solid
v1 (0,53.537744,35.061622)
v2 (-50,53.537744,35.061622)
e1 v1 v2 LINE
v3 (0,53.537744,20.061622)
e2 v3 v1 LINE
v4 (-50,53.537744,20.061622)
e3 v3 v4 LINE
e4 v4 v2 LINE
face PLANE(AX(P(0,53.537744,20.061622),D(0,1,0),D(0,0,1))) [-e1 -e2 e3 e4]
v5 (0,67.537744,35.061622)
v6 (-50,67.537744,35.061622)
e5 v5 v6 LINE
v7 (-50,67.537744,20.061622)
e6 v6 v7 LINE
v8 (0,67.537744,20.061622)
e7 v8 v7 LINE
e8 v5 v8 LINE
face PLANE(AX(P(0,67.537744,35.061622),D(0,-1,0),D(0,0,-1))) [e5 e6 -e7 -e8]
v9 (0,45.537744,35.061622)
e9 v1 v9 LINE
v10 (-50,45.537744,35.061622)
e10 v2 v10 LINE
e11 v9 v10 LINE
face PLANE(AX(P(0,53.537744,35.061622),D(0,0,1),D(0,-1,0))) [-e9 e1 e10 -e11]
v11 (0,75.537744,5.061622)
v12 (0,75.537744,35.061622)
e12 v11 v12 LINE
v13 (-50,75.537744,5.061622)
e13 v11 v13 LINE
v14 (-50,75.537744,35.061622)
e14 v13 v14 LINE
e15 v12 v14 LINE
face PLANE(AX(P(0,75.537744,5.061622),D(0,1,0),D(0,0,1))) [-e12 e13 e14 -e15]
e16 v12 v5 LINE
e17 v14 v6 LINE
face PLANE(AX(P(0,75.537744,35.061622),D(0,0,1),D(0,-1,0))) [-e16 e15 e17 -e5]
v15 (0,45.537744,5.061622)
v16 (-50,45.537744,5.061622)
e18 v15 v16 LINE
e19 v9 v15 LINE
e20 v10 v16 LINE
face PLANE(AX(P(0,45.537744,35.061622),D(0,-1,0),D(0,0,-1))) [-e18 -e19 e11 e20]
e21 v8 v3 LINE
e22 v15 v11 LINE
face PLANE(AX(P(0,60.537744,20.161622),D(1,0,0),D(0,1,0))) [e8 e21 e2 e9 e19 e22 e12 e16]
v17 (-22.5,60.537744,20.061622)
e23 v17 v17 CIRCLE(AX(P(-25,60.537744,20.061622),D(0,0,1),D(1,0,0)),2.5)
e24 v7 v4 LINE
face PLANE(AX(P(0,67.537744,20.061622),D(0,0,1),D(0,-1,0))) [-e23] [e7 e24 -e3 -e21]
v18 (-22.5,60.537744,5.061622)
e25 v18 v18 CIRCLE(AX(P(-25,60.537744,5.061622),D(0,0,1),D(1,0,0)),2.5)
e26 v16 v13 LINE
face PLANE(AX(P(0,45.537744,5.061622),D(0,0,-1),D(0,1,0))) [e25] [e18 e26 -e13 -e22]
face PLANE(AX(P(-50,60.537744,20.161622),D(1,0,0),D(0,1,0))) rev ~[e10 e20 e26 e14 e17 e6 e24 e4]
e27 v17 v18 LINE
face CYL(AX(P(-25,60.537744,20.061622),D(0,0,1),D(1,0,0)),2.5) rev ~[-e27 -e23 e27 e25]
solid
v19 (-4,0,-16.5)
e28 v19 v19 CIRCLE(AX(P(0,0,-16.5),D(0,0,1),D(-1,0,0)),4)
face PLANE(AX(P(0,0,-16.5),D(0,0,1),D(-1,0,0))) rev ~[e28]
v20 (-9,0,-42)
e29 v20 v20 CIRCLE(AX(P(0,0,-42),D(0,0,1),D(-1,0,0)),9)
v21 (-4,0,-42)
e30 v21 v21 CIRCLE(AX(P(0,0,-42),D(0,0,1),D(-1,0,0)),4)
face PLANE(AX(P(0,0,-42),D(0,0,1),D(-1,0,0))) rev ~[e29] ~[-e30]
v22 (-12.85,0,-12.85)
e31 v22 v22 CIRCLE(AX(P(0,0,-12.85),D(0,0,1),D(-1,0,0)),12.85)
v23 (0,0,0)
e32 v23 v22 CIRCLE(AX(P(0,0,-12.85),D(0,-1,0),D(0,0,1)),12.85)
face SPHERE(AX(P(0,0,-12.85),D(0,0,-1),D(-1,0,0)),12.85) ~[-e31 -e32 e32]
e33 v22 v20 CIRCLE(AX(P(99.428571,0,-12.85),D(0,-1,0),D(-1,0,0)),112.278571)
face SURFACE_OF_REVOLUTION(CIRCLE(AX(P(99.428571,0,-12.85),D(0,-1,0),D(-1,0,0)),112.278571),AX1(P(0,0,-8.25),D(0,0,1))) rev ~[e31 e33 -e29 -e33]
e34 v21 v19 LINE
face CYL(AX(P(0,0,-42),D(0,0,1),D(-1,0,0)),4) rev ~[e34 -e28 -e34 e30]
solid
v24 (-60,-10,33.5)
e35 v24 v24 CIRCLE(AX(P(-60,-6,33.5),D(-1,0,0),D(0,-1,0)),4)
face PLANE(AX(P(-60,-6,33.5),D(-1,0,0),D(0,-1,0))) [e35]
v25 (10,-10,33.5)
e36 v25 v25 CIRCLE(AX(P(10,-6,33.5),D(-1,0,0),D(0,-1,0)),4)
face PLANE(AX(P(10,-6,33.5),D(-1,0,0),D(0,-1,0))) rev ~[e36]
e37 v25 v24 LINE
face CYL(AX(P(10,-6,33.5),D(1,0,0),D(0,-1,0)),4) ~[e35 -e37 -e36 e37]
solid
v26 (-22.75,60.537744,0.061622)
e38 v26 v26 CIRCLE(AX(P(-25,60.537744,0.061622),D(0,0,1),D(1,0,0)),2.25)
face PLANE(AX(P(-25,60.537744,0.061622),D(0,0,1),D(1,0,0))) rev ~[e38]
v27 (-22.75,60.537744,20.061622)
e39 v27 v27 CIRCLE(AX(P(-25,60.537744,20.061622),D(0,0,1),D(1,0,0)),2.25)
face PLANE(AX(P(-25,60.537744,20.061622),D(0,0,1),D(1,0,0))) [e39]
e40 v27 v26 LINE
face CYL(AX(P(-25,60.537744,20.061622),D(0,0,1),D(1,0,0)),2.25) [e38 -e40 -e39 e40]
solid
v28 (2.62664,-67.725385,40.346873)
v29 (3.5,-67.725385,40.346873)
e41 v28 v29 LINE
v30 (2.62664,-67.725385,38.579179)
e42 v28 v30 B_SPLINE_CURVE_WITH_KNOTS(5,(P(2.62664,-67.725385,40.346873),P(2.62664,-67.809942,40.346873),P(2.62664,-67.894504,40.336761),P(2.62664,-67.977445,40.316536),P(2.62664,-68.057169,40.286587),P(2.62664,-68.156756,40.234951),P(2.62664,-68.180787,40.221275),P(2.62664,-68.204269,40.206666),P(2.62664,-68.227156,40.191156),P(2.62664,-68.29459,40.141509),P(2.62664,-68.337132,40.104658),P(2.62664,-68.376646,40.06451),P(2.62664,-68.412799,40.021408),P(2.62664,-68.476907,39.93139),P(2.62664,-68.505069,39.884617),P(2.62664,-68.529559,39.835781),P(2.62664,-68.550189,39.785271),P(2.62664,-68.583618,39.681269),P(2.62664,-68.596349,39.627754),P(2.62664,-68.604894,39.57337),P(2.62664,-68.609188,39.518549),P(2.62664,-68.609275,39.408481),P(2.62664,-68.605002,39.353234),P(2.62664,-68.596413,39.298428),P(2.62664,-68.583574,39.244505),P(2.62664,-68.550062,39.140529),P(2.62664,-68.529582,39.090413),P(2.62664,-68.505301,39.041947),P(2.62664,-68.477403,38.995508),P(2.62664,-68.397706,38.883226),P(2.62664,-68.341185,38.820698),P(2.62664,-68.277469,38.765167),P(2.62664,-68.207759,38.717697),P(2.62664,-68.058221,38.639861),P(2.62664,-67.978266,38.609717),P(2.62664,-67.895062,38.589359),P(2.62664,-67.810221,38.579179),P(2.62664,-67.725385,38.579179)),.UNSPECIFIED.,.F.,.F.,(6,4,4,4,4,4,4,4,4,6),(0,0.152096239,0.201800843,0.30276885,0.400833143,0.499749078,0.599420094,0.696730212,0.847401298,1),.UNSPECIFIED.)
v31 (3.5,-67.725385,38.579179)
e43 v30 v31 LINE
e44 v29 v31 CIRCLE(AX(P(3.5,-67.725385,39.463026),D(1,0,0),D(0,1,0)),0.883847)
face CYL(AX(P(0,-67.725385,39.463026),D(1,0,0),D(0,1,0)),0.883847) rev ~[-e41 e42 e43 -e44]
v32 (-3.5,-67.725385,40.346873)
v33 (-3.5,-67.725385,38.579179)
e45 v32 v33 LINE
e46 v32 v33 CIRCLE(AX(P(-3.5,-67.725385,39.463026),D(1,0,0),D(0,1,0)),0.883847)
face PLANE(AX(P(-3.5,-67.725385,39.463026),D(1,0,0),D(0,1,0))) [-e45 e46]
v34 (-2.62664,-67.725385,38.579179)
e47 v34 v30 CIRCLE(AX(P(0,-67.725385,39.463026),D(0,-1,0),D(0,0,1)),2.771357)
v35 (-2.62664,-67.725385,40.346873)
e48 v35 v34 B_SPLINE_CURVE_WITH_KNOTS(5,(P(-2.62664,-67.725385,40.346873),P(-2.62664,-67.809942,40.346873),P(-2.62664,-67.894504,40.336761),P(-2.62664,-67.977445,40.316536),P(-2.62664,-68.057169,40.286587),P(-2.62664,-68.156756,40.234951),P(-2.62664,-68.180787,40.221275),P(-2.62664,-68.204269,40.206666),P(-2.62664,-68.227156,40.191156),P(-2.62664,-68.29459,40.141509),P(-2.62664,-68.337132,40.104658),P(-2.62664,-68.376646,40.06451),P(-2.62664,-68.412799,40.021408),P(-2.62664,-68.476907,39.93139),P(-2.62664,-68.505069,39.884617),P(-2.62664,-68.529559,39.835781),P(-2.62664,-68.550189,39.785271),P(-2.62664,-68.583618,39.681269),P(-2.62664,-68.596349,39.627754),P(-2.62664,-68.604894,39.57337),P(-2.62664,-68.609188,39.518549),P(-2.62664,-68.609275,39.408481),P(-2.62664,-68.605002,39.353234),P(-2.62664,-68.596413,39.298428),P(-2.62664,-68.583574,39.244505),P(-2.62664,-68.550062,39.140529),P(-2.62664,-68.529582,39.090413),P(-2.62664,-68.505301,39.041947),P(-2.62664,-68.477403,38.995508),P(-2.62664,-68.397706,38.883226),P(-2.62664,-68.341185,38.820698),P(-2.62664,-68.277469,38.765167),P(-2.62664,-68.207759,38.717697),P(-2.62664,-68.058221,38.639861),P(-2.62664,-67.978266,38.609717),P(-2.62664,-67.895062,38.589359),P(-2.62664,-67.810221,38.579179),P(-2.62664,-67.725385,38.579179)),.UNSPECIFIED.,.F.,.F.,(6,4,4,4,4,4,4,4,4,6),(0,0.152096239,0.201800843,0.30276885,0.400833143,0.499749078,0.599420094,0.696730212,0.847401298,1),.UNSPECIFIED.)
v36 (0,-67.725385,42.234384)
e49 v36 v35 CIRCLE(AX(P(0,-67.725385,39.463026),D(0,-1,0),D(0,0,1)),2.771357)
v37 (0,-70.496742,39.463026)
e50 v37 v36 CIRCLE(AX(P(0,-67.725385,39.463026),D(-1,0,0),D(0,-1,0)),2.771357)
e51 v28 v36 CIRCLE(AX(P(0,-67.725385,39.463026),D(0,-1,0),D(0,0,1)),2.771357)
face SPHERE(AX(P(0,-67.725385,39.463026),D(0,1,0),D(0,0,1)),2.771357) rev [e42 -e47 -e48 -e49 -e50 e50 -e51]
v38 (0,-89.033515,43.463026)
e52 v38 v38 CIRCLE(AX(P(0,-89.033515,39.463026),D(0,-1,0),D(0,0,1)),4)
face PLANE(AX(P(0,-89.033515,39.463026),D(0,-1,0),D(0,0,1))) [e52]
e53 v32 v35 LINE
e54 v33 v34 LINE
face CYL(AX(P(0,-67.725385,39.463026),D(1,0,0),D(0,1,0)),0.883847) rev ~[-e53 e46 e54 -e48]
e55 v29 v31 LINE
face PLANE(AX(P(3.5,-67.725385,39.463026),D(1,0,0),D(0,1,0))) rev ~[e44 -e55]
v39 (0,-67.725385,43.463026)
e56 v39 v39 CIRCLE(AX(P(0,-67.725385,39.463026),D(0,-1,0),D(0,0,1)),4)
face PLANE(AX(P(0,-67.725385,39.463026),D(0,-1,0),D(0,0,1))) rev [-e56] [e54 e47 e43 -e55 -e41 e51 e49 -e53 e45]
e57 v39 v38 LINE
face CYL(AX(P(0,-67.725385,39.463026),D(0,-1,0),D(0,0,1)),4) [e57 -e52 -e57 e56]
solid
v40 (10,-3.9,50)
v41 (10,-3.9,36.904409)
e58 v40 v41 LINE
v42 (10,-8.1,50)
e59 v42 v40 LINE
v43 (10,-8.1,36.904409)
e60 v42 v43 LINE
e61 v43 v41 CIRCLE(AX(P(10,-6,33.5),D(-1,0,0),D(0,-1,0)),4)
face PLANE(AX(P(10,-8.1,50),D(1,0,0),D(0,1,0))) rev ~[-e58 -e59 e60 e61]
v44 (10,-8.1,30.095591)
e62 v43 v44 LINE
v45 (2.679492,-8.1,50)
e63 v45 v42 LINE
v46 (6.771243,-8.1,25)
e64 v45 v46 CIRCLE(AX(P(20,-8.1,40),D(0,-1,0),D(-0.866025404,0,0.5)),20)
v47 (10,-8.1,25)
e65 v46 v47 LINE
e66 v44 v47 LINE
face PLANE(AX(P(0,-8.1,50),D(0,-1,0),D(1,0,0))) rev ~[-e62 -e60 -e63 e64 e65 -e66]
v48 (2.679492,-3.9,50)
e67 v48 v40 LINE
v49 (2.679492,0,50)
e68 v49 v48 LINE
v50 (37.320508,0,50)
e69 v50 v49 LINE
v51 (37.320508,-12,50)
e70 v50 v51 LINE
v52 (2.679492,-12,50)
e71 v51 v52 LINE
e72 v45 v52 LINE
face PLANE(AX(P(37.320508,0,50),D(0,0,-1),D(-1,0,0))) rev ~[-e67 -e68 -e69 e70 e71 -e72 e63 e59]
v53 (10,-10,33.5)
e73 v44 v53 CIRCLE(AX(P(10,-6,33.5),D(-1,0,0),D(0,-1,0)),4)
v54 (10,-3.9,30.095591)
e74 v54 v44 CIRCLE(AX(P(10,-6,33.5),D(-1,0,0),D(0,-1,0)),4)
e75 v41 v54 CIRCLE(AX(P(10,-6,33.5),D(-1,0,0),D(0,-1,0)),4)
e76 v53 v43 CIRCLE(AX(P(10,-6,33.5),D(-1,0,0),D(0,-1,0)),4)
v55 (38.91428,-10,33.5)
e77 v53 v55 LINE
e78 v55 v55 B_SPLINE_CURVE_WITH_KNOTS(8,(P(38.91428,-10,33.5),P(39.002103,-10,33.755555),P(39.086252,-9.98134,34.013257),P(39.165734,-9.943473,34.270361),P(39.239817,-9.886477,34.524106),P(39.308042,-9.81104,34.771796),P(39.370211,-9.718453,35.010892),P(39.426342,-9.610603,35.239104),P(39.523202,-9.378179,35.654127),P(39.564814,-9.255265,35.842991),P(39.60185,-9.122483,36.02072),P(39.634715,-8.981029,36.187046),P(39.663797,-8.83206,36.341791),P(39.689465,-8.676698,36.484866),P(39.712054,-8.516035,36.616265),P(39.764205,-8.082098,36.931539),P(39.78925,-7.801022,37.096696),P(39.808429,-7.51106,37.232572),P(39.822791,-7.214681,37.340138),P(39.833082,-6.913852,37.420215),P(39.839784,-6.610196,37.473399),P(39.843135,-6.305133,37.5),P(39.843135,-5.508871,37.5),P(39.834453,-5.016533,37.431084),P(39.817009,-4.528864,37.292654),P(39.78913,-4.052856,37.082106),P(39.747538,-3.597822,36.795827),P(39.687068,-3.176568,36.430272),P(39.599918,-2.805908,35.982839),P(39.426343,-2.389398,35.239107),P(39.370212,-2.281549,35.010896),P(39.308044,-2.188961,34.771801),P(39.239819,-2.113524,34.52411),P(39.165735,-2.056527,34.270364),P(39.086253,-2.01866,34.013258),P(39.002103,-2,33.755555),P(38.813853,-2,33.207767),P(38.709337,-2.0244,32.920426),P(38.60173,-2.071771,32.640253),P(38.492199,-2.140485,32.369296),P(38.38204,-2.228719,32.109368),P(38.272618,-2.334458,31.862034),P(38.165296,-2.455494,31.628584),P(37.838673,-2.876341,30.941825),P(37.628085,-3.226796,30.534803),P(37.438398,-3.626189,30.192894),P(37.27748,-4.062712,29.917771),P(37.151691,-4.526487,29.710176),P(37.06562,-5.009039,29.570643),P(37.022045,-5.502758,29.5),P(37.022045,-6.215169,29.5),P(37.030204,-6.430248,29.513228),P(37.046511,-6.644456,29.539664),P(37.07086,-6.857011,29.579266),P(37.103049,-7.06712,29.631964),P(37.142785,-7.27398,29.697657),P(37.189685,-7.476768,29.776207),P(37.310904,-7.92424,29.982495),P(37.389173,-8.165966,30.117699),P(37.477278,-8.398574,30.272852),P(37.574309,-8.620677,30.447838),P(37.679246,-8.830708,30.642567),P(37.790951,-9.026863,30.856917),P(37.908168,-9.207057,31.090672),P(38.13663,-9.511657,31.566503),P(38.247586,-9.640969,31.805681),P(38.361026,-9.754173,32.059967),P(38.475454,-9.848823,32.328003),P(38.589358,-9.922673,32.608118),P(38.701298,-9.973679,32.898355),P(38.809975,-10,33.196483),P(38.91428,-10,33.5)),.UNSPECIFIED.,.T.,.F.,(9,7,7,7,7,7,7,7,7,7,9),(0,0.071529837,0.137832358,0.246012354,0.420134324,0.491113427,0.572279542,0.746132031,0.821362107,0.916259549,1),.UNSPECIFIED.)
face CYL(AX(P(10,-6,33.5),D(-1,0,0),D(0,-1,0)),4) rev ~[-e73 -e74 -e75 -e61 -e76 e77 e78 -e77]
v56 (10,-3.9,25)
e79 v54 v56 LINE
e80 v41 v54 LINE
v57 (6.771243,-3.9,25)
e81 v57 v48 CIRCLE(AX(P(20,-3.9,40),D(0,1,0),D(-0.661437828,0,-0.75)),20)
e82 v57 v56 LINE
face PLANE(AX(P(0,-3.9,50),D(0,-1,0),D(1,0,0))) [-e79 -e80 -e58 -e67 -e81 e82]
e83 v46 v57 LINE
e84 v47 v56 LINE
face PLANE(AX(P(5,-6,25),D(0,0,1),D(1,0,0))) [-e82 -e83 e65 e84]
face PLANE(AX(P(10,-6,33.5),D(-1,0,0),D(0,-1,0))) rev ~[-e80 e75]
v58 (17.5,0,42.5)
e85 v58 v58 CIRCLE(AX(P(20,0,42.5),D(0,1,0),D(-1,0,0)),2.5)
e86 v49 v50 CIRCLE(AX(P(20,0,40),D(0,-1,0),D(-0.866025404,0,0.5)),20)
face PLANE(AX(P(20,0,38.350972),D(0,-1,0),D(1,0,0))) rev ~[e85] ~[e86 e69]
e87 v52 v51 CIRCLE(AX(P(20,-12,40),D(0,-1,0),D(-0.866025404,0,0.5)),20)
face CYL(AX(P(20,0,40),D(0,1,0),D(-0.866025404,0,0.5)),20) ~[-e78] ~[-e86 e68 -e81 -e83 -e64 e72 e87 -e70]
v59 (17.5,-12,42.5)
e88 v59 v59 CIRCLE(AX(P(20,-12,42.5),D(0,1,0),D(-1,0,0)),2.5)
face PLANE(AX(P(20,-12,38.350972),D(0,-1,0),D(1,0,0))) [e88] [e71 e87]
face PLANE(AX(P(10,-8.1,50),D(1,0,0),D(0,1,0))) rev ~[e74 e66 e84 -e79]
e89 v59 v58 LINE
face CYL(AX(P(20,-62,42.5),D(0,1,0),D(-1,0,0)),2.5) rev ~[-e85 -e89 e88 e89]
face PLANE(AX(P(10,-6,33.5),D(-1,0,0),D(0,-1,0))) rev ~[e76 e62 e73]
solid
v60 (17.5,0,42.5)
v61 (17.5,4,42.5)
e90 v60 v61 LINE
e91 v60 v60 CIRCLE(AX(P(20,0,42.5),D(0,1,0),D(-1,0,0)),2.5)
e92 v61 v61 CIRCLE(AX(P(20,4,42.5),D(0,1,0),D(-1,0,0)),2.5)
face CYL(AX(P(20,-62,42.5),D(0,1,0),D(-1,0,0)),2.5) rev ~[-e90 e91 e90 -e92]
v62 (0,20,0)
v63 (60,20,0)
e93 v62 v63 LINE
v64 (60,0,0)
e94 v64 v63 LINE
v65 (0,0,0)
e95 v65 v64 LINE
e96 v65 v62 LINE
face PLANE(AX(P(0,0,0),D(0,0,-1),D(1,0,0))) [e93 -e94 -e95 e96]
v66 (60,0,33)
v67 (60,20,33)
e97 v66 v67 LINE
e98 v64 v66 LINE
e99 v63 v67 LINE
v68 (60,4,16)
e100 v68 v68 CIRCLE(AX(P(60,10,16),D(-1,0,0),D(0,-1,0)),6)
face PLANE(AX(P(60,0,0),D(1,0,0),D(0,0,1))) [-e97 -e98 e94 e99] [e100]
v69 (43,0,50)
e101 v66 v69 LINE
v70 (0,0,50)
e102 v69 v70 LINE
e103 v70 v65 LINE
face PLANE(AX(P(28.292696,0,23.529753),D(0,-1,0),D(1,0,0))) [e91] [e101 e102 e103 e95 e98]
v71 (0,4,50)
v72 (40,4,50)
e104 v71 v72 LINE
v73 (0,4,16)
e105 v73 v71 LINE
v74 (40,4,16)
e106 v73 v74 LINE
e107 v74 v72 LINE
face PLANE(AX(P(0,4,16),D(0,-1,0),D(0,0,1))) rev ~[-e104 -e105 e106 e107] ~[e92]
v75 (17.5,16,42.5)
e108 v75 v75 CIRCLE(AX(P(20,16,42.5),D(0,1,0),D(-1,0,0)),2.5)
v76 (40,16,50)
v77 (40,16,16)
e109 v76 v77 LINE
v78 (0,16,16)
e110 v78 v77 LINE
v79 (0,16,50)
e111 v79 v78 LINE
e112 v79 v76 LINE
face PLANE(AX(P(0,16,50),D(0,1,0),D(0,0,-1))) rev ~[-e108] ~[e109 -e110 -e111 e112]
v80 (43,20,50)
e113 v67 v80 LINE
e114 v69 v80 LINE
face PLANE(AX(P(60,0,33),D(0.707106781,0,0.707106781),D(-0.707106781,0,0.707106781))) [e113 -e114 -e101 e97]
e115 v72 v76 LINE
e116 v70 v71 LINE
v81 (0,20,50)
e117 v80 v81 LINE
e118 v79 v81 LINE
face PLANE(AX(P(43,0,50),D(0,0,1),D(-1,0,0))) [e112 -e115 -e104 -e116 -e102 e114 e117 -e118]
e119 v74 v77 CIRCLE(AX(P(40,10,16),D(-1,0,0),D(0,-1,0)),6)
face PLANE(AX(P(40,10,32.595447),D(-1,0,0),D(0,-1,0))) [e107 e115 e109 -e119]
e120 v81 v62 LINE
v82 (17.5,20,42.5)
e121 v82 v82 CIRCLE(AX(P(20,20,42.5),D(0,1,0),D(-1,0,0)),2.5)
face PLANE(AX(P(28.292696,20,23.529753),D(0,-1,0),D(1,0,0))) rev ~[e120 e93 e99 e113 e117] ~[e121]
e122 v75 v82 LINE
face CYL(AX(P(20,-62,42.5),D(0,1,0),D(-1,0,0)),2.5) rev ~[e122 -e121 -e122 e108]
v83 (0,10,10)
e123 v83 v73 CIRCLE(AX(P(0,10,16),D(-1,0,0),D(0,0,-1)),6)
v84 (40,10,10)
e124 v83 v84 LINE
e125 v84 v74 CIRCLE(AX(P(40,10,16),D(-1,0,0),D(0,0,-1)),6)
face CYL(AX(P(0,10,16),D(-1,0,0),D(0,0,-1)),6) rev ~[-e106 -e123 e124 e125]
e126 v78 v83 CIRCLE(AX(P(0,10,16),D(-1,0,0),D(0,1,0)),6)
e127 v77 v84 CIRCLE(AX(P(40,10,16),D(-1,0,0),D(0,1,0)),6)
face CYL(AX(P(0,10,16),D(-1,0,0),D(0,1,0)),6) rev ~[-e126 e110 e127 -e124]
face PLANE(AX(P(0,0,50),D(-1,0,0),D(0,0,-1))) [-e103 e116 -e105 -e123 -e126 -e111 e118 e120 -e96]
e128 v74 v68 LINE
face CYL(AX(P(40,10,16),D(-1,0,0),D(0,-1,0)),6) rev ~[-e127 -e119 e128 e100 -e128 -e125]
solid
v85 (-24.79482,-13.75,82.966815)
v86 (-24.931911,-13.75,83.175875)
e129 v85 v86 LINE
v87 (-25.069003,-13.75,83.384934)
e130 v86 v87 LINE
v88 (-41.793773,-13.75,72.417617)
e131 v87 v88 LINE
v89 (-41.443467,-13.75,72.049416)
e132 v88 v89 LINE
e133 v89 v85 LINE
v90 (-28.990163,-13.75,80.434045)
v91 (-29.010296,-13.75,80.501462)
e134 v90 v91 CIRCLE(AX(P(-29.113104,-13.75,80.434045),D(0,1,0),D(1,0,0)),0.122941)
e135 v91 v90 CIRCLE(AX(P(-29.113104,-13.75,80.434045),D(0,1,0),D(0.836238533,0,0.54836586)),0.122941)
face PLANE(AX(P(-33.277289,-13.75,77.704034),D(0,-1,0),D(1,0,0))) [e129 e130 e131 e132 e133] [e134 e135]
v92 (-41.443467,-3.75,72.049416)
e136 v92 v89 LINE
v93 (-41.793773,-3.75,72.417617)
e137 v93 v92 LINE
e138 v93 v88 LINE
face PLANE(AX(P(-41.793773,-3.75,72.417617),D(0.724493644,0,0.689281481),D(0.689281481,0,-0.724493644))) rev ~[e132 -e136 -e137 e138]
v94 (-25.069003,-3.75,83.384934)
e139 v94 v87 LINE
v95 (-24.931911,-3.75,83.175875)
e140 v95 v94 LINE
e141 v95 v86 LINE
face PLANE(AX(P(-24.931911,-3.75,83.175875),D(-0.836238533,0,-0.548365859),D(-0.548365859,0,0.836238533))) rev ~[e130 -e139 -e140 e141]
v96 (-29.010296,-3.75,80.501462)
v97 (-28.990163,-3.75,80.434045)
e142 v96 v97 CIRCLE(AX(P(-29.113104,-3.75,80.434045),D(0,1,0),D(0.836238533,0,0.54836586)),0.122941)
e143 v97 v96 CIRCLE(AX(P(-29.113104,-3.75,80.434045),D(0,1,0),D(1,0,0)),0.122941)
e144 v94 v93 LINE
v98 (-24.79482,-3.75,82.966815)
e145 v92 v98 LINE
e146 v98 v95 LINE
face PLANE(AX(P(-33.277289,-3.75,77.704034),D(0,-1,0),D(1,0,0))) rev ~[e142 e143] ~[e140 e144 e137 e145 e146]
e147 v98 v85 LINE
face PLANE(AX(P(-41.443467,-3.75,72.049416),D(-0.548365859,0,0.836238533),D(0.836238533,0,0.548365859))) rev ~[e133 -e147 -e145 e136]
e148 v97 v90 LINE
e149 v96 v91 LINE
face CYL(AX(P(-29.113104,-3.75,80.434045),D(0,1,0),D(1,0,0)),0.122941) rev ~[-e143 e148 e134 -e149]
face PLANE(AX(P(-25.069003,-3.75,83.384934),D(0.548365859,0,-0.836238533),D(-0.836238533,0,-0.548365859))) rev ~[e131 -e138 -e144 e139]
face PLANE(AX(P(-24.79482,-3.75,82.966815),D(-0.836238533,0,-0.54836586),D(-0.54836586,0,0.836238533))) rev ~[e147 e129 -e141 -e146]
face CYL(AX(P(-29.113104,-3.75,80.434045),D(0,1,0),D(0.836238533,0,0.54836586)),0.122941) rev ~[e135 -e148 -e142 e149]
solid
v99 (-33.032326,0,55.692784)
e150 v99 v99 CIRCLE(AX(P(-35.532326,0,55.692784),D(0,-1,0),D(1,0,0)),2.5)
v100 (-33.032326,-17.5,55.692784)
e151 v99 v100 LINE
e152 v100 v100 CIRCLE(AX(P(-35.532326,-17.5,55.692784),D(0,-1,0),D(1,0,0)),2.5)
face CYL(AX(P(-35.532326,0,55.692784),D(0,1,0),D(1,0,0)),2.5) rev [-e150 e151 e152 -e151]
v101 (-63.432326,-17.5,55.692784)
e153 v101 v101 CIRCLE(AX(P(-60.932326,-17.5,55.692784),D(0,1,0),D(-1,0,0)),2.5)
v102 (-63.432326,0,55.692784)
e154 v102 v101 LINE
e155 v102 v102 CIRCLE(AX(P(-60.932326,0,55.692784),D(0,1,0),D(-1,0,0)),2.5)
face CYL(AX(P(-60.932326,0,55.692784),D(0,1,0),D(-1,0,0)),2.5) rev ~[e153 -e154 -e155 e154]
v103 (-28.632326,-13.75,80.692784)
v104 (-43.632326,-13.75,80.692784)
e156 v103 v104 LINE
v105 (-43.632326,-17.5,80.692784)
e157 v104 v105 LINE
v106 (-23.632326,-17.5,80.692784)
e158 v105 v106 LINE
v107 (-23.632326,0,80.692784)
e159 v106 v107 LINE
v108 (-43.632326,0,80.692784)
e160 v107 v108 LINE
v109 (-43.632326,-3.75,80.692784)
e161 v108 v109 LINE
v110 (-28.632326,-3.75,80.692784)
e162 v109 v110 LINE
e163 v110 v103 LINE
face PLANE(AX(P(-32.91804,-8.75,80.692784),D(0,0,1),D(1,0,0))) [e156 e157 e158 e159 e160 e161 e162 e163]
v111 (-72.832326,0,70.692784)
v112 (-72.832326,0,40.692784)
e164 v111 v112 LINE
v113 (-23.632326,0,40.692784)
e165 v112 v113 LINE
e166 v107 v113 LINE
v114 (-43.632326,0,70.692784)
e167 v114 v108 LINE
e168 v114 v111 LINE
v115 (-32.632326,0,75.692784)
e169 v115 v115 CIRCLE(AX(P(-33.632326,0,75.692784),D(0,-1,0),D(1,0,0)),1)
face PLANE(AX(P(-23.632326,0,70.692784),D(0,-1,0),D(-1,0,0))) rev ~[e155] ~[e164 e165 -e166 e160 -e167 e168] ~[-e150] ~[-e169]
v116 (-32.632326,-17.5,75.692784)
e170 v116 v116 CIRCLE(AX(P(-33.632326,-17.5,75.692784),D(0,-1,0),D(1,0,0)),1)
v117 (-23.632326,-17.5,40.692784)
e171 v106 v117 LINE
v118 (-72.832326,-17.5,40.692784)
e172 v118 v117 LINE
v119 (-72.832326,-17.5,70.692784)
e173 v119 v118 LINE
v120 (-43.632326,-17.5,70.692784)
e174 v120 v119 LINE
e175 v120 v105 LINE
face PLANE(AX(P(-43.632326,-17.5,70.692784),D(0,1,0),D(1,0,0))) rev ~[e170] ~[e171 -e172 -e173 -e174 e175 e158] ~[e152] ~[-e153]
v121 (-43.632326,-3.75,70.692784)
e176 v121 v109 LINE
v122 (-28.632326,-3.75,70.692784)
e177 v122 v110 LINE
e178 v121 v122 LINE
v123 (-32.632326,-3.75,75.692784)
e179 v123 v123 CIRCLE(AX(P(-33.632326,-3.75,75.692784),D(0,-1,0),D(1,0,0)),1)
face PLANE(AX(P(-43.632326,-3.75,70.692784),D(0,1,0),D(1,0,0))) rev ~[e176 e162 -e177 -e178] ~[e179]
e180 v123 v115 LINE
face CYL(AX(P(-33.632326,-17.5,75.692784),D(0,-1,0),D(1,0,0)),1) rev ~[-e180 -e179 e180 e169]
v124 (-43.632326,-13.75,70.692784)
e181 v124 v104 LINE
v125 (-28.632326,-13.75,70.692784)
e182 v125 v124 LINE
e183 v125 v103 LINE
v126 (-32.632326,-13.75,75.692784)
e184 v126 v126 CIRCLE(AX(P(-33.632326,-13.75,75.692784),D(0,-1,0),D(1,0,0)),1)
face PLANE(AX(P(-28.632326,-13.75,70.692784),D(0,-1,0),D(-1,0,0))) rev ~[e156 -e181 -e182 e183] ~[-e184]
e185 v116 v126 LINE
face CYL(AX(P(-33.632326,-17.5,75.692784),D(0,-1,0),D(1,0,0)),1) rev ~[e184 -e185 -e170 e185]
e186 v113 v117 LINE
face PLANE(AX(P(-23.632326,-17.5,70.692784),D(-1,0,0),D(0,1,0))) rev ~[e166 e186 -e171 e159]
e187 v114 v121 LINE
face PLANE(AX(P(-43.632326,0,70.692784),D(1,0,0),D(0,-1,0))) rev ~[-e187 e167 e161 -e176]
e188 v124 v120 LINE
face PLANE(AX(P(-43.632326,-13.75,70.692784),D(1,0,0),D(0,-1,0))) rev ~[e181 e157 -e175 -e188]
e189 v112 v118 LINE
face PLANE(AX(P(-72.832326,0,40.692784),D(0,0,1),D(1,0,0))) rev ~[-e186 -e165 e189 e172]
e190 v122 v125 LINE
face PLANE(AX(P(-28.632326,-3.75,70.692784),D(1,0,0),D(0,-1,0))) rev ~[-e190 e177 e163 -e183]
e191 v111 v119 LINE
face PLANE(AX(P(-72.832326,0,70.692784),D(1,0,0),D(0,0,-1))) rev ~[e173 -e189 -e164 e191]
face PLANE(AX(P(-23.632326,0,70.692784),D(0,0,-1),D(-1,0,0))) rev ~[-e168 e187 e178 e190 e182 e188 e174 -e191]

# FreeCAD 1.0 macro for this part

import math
import FreeCAD as App
import Part
import Sketcher

V = App.Vector


def add_polygon(sketch, points):
    """Adds a closed chain of lines whose ends are joined by coincident constraints."""
    first, n = sketch.GeometryCount, len(points)
    for a, b in zip(points, points[1:] + points[:1]):
        sketch.addGeometry(Part.LineSegment(App.Vector(*a, 0), App.Vector(*b, 0)), False)
    for i in range(n):
        sketch.addConstraint(Sketcher.Constraint("Coincident", first + i, 2, first + (i + 1) % n, 1))

doc = App.newDocument("Part")
body = doc.addObject("PartDesign::Body", "Body")

# Sketch on XZ plane
sketch1 = body.newObject("Sketcher::SketchObject", "Sketch")
sketch1.AttachmentSupport = (doc.getObject("XZ_Plane"), [""])
sketch1.MapMode = "FlatFace"
add_polygon(sketch1, [(0, 50), (0, 0), (60, 0), (60, 33), (43, 50)])  # lines 0-4
sketch1.addConstraint(Sketcher.Constraint("Vertical", 0))
sketch1.addConstraint(Sketcher.Constraint("Horizontal", 1))
sketch1.addConstraint(Sketcher.Constraint("Vertical", 2))
sketch1.addConstraint(Sketcher.Constraint("Horizontal", 4))
sketch1.addConstraint(Sketcher.Constraint("Coincident", 0, 2, -1, 1))
sketch1.addConstraint(Sketcher.Constraint("DistanceX", 1, 1, 1, 2, 60.0))
sketch1.addConstraint(Sketcher.Constraint("DistanceX", 4, 2, 4, 1, 43.0))
sketch1.addConstraint(Sketcher.Constraint("DistanceY", 0, 2, 0, 1, 50.0))
sketch1.addConstraint(Sketcher.Constraint("DistanceY", 2, 1, 2, 2, 33.0))
pad1 = body.newObject("PartDesign::Pad", "Pad")
pad1.Profile = sketch1
pad1.Length = 20
pad1.Reversed = True

# Sketch on YZ plane
sketch2 = body.newObject("Sketcher::SketchObject", "Sketch001")
sketch2.AttachmentSupport = (doc.getObject("YZ_Plane"), [""])
sketch2.MapMode = "FlatFace"
sketch2.addGeometry(Part.LineSegment(V(4, 50, 0), V(16, 50, 0)), False)
sketch2.addGeometry(Part.LineSegment(V(16, 50, 0), V(16, 16, 0)), False)
sketch2.addGeometry(Part.ArcOfCircle(Part.Circle(V(10, 16, 0), V(0, 0, 1), 6), math.radians(-90), math.radians(0)), False)
sketch2.addGeometry(Part.ArcOfCircle(Part.Circle(V(10, 16, 0), V(0, 0, 1), 6), math.radians(180), math.radians(270)), False)
sketch2.addGeometry(Part.LineSegment(V(4, 16, 0), V(4, 50, 0)), False)
sketch2.addConstraint(Sketcher.Constraint("Coincident", 0, 2, 1, 1))
sketch2.addConstraint(Sketcher.Constraint("Tangent", 1, 2, 2, 2))
sketch2.addConstraint(Sketcher.Constraint("Tangent", 2, 1, 3, 2))
sketch2.addConstraint(Sketcher.Constraint("Tangent", 3, 1, 4, 1))
sketch2.addConstraint(Sketcher.Constraint("Coincident", 4, 2, 0, 1))
sketch2.addConstraint(Sketcher.Constraint("Horizontal", 0))
sketch2.addConstraint(Sketcher.Constraint("Vertical", 1))
sketch2.addConstraint(Sketcher.Constraint("Vertical", 4))
sketch2.addConstraint(Sketcher.Constraint("Equal", 2, 3))
sketch2.addConstraint(Sketcher.Constraint("Vertical", 3, 3, 2, 1))
sketch2.addConstraint(Sketcher.Constraint("Radius", 2, 6.0))
sketch2.addConstraint(Sketcher.Constraint("DistanceY", 1, 2, 1, 1, 34.0))
sketch2.addConstraint(Sketcher.Constraint("DistanceX", -1, 1, 2, 3, 10.0))
sketch2.addConstraint(Sketcher.Constraint("DistanceY", -1, 1, 2, 3, 16.0))
pocket1 = body.newObject("PartDesign::Pocket", "Pocket")
pocket1.Profile = sketch2
pocket1.Length = 40
pocket1.Reversed = True

# Sketch on YZ plane
sketch3 = body.newObject("Sketcher::SketchObject", "Sketch002")
sketch3.AttachmentSupport = (doc.getObject("YZ_Plane"), [""])
sketch3.MapMode = "FlatFace"
sketch3.AttachmentOffset = App.Placement(V(0, 0, 40), App.Rotation())
sketch3.addGeometry(Part.Circle(V(10, 16, 0), V(0, 0, 1), 6), False)
sketch3.addConstraint(Sketcher.Constraint("Diameter", 0, 12.0))
sketch3.addConstraint(Sketcher.Constraint("DistanceX", -1, 1, 0, 3, 10.0))
sketch3.addConstraint(Sketcher.Constraint("DistanceY", -1, 1, 0, 3, 16.0))
pocket2 = body.newObject("PartDesign::Pocket", "Pocket001")
pocket2.Profile = sketch3
pocket2.Length = 25
pocket2.Reversed = True

# Sketch on XZ plane
sketch4 = body.newObject("Sketcher::SketchObject", "Sketch003")
sketch4.AttachmentSupport = (doc.getObject("XZ_Plane"), [""])
sketch4.MapMode = "FlatFace"
sketch4.AttachmentOffset = App.Placement(V(0, 0, 12), App.Rotation())
sketch4.addGeometry(Part.Circle(V(20, 42.5, 0), V(0, 0, 1), 2.5), False)
sketch4.addConstraint(Sketcher.Constraint("Diameter", 0, 5.0))
sketch4.addConstraint(Sketcher.Constraint("DistanceX", -1, 1, 0, 3, 20.0))
sketch4.addConstraint(Sketcher.Constraint("DistanceY", -1, 1, 0, 3, 42.5))
doc.recompute()
hole = body.newObject("PartDesign::Hole", "Hole")
hole.Profile = sketch4
hole.ThreadType = "None"
hole.Diameter = 5
hole.DepthType = "Dimension"
hole.Depth = 50
hole.DrillPoint = "Angled"
hole.DrillPointAngle = 118
body2 = doc.addObject("PartDesign::Body", "Body001")

# Sketch on XZ plane
sketch5 = body2.newObject("Sketcher::SketchObject", "Sketch004")
sketch5.AttachmentSupport = (doc.getObject("XZ_Plane001"), [""])
sketch5.MapMode = "FlatFace"
sketch5.addGeometry(Part.LineSegment(V(37, 50, 0), V(3, 50, 0)), False)
sketch5.addGeometry(Part.ArcOfCircle(Part.Circle(V(20, 40, 0), V(0, 0, 1), 20), math.radians(150), math.radians(390)), False)
sketch5.addConstraint(Sketcher.Constraint("Coincident", 0, 1, 1, 2))
sketch5.addConstraint(Sketcher.Constraint("Coincident", 1, 1, 0, 2))
sketch5.addConstraint(Sketcher.Constraint("Horizontal", 0))
sketch5.addConstraint(Sketcher.Constraint("Radius", 1, 20.0))
sketch5.addConstraint(Sketcher.Constraint("DistanceX", -1, 1, 1, 3, 20.0))
sketch5.addConstraint(Sketcher.Constraint("DistanceY", -1, 1, 1, 3, 40.0))
sketch5.addConstraint(Sketcher.Constraint("DistanceY", -1, 1, 0, 1, 50.0))
pad2 = body2.newObject("PartDesign::Pad", "Pad001")
pad2.Profile = sketch5
pad2.Length = 12

# Sketch on XZ plane
sketch6 = body2.newObject("Sketcher::SketchObject", "Sketch005")
sketch6.AttachmentSupport = (doc.getObject("XZ_Plane001"), [""])
sketch6.MapMode = "FlatFace"
sketch6.AttachmentOffset = App.Placement(V(0, 0, 12), App.Rotation())
sketch6.addGeometry(Part.Circle(V(20, 42.5, 0), V(0, 0, 1), 2.5), False)
sketch6.addConstraint(Sketcher.Constraint("Diameter", 0, 5.0))
sketch6.addConstraint(Sketcher.Constraint("DistanceX", -1, 1, 0, 3, 20.0))
sketch6.addConstraint(Sketcher.Constraint("DistanceY", -1, 1, 0, 3, 42.5))
doc.recompute()
hole2 = body2.newObject("PartDesign::Hole", "Hole001")
hole2.Profile = sketch6
hole2.ThreadType = "None"
hole2.Diameter = 5
hole2.DepthType = "Dimension"
hole2.Depth = 50
hole2.DrillPoint = "Angled"
hole2.DrillPointAngle = 118

# Sketch on XY plane
sketch7 = body2.newObject("Sketcher::SketchObject", "Sketch006")
sketch7.AttachmentSupport = (doc.getObject("XY_Plane001"), [""])
sketch7.MapMode = "FlatFace"
sketch7.AttachmentOffset = App.Placement(V(0, 0, 50), App.Rotation())
add_polygon(sketch7, [(0, -3.9), (0, -8.1), (10, -8.1), (10, -3.9)])  # lines 0-3
sketch7.addConstraint(Sketcher.Constraint("Vertical", 0))
sketch7.addConstraint(Sketcher.Constraint("Horizontal", 1))
sketch7.addConstraint(Sketcher.Constraint("Vertical", 2))
sketch7.addConstraint(Sketcher.Constraint("Horizontal", 3))
sketch7.addConstraint(Sketcher.Constraint("PointOnObject", 0, 2, -2))
sketch7.addConstraint(Sketcher.Constraint("DistanceX", 1, 1, 1, 2, 10.0))
sketch7.addConstraint(Sketcher.Constraint("DistanceY", 0, 2, 0, 1, 4.2))
sketch7.addConstraint(Sketcher.Constraint("DistanceY", 0, 2, -1, 1, 8.1))
pocket3 = body2.newObject("PartDesign::Pocket", "Pocket002")
pocket3.Profile = sketch7
pocket3.Length = 25

# Sketch on YZ plane
sketch8 = body2.newObject("Sketcher::SketchObject", "Sketch007")
sketch8.AttachmentSupport = (doc.getObject("YZ_Plane001"), [""])
sketch8.MapMode = "FlatFace"
sketch8.AttachmentOffset = App.Placement(V(0, 0, 10), App.Rotation())
sketch8.addGeometry(Part.Circle(V(-6, 33.5, 0), V(0, 0, 1), 4), False)
sketch8.addConstraint(Sketcher.Constraint("Diameter", 0, 8.0))
sketch8.addConstraint(Sketcher.Constraint("DistanceX", 0, 3, -1, 1, 6.0))
sketch8.addConstraint(Sketcher.Constraint("DistanceY", -1, 1, 0, 3, 33.5))
pocket4 = body2.newObject("PartDesign::Pocket", "Pocket003")
pocket4.Profile = sketch8
pocket4.Length = 30
pocket4.Reversed = True
body3 = doc.addObject("PartDesign::Body", "Body002")

# Sketch on YZ plane
sketch9 = body3.newObject("Sketcher::SketchObject", "Sketch008")
sketch9.AttachmentSupport = (doc.getObject("YZ_Plane002"), [""])
sketch9.MapMode = "FlatFace"
sketch9.AttachmentOffset = App.Placement(V(0, 0, 10), App.Rotation())
sketch9.addGeometry(Part.Circle(V(-6, 33.5, 0), V(0, 0, 1), 4), False)
sketch9.addConstraint(Sketcher.Constraint("Diameter", 0, 8.0))
sketch9.addConstraint(Sketcher.Constraint("DistanceX", 0, 3, -1, 1, 6.0))
sketch9.addConstraint(Sketcher.Constraint("DistanceY", -1, 1, 0, 3, 33.5))
pad3 = body3.newObject("PartDesign::Pad", "Pad002")
pad3.Profile = sketch9
pad3.Length = 70
pad3.Reversed = True
body4 = doc.addObject("PartDesign::Body", "Body003")

# Sketch on XZ plane
sketch10 = body4.newObject("Sketcher::SketchObject", "Sketch009")
sketch10.AttachmentSupport = (doc.getObject("XZ_Plane003"), [""])
sketch10.MapMode = "FlatFace"
sketch10.addGeometry(Part.LineSegment(V(-4, -16.5, 0), V(0, -16.5, 0)), False)
sketch10.addGeometry(Part.LineSegment(V(0, -16.5, 0), V(0, 0, 0)), False)
sketch10.addGeometry(Part.ArcOfCircle(Part.Circle(V(0, -12.8, 0), V(0, 0, 1), 12.8), math.radians(90), math.radians(180)), False)
sketch10.addGeometry(Part.ArcOfCircle(Part.Circle(V(99.4, -12.8, 0), V(0, 0, 1), 112.3), math.radians(-180), math.radians(-164.95)), False)
sketch10.addGeometry(Part.LineSegment(V(-9, -42, 0), V(-4, -42, 0)), False)
sketch10.addGeometry(Part.LineSegment(V(-4, -42, 0), V(-4, -16.5, 0)), False)
sketch10.addConstraint(Sketcher.Constraint("Coincident", 0, 2, 1, 1))
sketch10.addConstraint(Sketcher.Constraint("Coincident", 1, 2, 2, 1))
sketch10.addConstraint(Sketcher.Constraint("Tangent", 2, 2, 3, 1))
sketch10.addConstraint(Sketcher.Constraint("Coincident", 3, 2, 4, 1))
sketch10.addConstraint(Sketcher.Constraint("Coincident", 4, 2, 5, 1))
sketch10.addConstraint(Sketcher.Constraint("Coincident", 5, 2, 0, 1))
sketch10.addConstraint(Sketcher.Constraint("Horizontal", 0))
sketch10.addConstraint(Sketcher.Constraint("Vertical", 1))
sketch10.addConstraint(Sketcher.Constraint("Horizontal", 4))
sketch10.addConstraint(Sketcher.Constraint("Vertical", 5))
sketch10.addConstraint(Sketcher.Constraint("Coincident", 1, 2, -1, 1))
sketch10.addConstraint(Sketcher.Constraint("PointOnObject", 2, 3, -2))
sketch10.addConstraint(Sketcher.Constraint("Horizontal", 2, 3, 3, 3))
sketch10.addConstraint(Sketcher.Constraint("DistanceX", 0, 1, 0, 2, 4.0))
sketch10.addConstraint(Sketcher.Constraint("DistanceX", 4, 1, 4, 2, 5.0))
sketch10.addConstraint(Sketcher.Constraint("Radius", 2, 12.85))
sketch10.addConstraint(Sketcher.Constraint("DistanceY", 1, 1, 1, 2, 16.5))
sketch10.addConstraint(Sketcher.Constraint("DistanceY", 5, 1, 5, 2, 25.5))
revolution = body4.newObject("PartDesign::Revolution", "Revolution")
revolution.Profile = sketch10
revolution.ReferenceAxis = (sketch10, ["V_Axis"])
revolution.Angle = 360
body5 = doc.addObject("PartDesign::Body", "Body004")

# Sketch on XZ plane
sketch11 = body5.newObject("Sketcher::SketchObject", "Sketch010")
sketch11.AttachmentSupport = (doc.getObject("XZ_Plane004"), [""])
sketch11.MapMode = "FlatFace"
add_polygon(sketch11, [(-23.6, 70.7), (-72.8, 70.7), (-72.8, 40.7), (-23.6, 40.7)])  # lines 0-3
sketch11.addGeometry(Part.Circle(V(-60.9, 55.7, 0), V(0, 0, 1), 2.5), False)  # 4
sketch11.addGeometry(Part.Circle(V(-35.5, 55.7, 0), V(0, 0, 1), 2.5), False)  # 5
sketch11.addConstraint(Sketcher.Constraint("Horizontal", 0))
sketch11.addConstraint(Sketcher.Constraint("Vertical", 1))
sketch11.addConstraint(Sketcher.Constraint("Horizontal", 2))
sketch11.addConstraint(Sketcher.Constraint("Vertical", 3))
sketch11.addConstraint(Sketcher.Constraint("Equal", 4, 5))
sketch11.addConstraint(Sketcher.Constraint("Horizontal", 4, 3, 5, 3))
sketch11.addConstraint(Sketcher.Constraint("Diameter", 4, 5.0))
sketch11.addConstraint(Sketcher.Constraint("DistanceY", 1, 2, 1, 1, 30.0))
sketch11.addConstraint(Sketcher.Constraint("DistanceX", 0, 2, 0, 1, 49.2))
sketch11.addConstraint(Sketcher.Constraint("DistanceY", 4, 3, 0, 2, 15.0))
sketch11.addConstraint(Sketcher.Constraint("DistanceX", 4, 3, 5, 3, 25.4))
sketch11.addConstraint(Sketcher.Constraint("DistanceX", 0, 2, 4, 3, 11.9))
sketch11.addConstraint(Sketcher.Constraint("DistanceX", 4, 3, -1, 1, 60.932326))
sketch11.addConstraint(Sketcher.Constraint("DistanceY", -1, 1, 4, 3, 55.692784))
pad4 = body5.newObject("PartDesign::Pad", "Pad003")
pad4.Profile = sketch11
pad4.Length = 17.5

# Sketch on XY plane
sketch12 = body5.newObject("Sketcher::SketchObject", "Sketch011")
sketch12.AttachmentSupport = (doc.getObject("XY_Plane004"), [""])
sketch12.MapMode = "FlatFace"
sketch12.AttachmentOffset = App.Placement(V(0, 0, 70.692784), App.Rotation())
add_polygon(sketch12, [(-23.6, 0), (-43.6, 0), (-43.6, -3.8), (-28.6, -3.8), (-28.6, -13.8), (-43.6, -13.8), (-43.6, -17.5), (-23.6, -17.5)])  # lines 0-7
sketch12.addConstraint(Sketcher.Constraint("Horizontal", 0))
sketch12.addConstraint(Sketcher.Constraint("Vertical", 1))
sketch12.addConstraint(Sketcher.Constraint("Horizontal", 2))
sketch12.addConstraint(Sketcher.Constraint("Vertical", 3))
sketch12.addConstraint(Sketcher.Constraint("Horizontal", 4))
sketch12.addConstraint(Sketcher.Constraint("Vertical", 5))
sketch12.addConstraint(Sketcher.Constraint("Horizontal", 6))
sketch12.addConstraint(Sketcher.Constraint("Vertical", 7))
sketch12.addConstraint(Sketcher.Constraint("PointOnObject", 0, 2, -1))
sketch12.addConstraint(Sketcher.Constraint("Vertical", 1, 2, 4, 2))
sketch12.addConstraint(Sketcher.Constraint("Equal", 1, 5))
sketch12.addConstraint(Sketcher.Constraint("DistanceX", 0, 2, 0, 1, 20.0))
sketch12.addConstraint(Sketcher.Constraint("DistanceX", 2, 1, 2, 2, 15.0))
sketch12.addConstraint(Sketcher.Constraint("DistanceY", 3, 2, 3, 1, 10.0))
sketch12.addConstraint(Sketcher.Constraint("DistanceY", 7, 1, 7, 2, 17.5))
sketch12.addConstraint(Sketcher.Constraint("DistanceX", 0, 2, -1, 1, 43.632326))
pad5 = body5.newObject("PartDesign::Pad", "Pad004")
pad5.Profile = sketch12
pad5.Length = 10

# Sketch on XZ plane
sketch13 = body5.newObject("Sketcher::SketchObject", "Sketch012")
sketch13.AttachmentSupport = (doc.getObject("XZ_Plane004"), [""])
sketch13.MapMode = "FlatFace"
sketch13.AttachmentOffset = App.Placement(V(0, 0, 17.5), App.Rotation())
sketch13.addGeometry(Part.Circle(V(-33.6, 75.7, 0), V(0, 0, 1), 1), False)
sketch13.addConstraint(Sketcher.Constraint("Diameter", 0, 2.0))
sketch13.addConstraint(Sketcher.Constraint("DistanceX", 0, 3, -1, 1, 33.632326))
sketch13.addConstraint(Sketcher.Constraint("DistanceY", -1, 1, 0, 3, 75.692784))
pocket5 = body5.newObject("PartDesign::Pocket", "Pocket004")
pocket5.Profile = sketch13
pocket5.Length = 25
body6 = doc.addObject("PartDesign::Body", "Body005")

# Sketch on XZ plane
sketch14 = body6.newObject("Sketcher::SketchObject", "Sketch013")
sketch14.AttachmentSupport = (doc.getObject("XZ_Plane005"), [""])
sketch14.MapMode = "FlatFace"
sketch14.AttachmentOffset = App.Placement(V(0, 0, 3.75), App.Rotation())
add_polygon(sketch14, [(-25.07, 83.38), (-41.79, 72.42), (-41.44, 72.05), (-24.79, 82.97), (-24.93, 83.18)])  # lines 0-4
sketch14.addGeometry(Part.ArcOfCircle(Part.Circle(V(-29.11, 80.43, 0), V(0, 0, 1), 0.12), math.radians(0), math.radians(33)), False)  # 5
sketch14.addGeometry(Part.ArcOfCircle(Part.Circle(V(-29.11, 80.43, 0), V(0, 0, 1), 0.12), math.radians(33), math.radians(360)), False)  # 6
sketch14.addConstraint(Sketcher.Constraint("Tangent", 5, 1, 6, 2))
sketch14.addConstraint(Sketcher.Constraint("Coincident", 6, 1, 5, 2))
sketch14.addConstraint(Sketcher.Constraint("Parallel", 0, 2))
sketch14.addConstraint(Sketcher.Constraint("Perpendicular", 2, 3))
sketch14.addConstraint(Sketcher.Constraint("Parallel", 3, 4))
sketch14.addConstraint(Sketcher.Constraint("Horizontal", 6, 3, 5, 1))
sketch14.addConstraint(Sketcher.Constraint("Equal", 3, 4))
sketch14.addConstraint(Sketcher.Constraint("Distance", 0, 20.0))
sketch14.addConstraint(Sketcher.Constraint("Distance", 3, 0.25))
sketch14.addConstraint(Sketcher.Constraint("Radius", 5, 0.122941))
sketch14.addConstraint(Sketcher.Constraint("DistanceY", 1, 2, 0, 2, 0.368201))
sketch14.addConstraint(Sketcher.Constraint("DistanceY", 1, 2, 2, 2, 10.917399))
sketch14.addConstraint(Sketcher.Constraint("DistanceX", 5, 3, 4, 2, 4.044101))
sketch14.addConstraint(Sketcher.Constraint("DistanceX", 2, 2, -1, 1, 24.79482))
sketch14.addConstraint(Sketcher.Constraint("DistanceY", 0, 2, 5, 3, 8.016428))
sketch14.addConstraint(Sketcher.Constraint("DistanceX", 5, 3, 6, 1, 0.102808))
sketch14.addConstraint(Sketcher.Constraint("DistanceY", -1, 1, 5, 3, 80.434045))
pad6 = body6.newObject("PartDesign::Pad", "Pad005")
pad6.Profile = sketch14
pad6.Length = 10
body7 = doc.addObject("PartDesign::Body", "Body006")

# Sketch on YZ plane
sketch15 = body7.newObject("Sketcher::SketchObject", "Sketch014")
sketch15.AttachmentSupport = (doc.getObject("YZ_Plane006"), [""])
sketch15.MapMode = "FlatFace"
sketch15.addGeometry(Part.ArcOfCircle(Part.Circle(V(-67.7, 39.5, 0), V(0, 0, 1), 2.8), math.radians(90), math.radians(180)), False)
sketch15.addGeometry(Part.LineSegment(V(-67.7, 42.2, 0), V(-67.7, 43.5, 0)), False)
sketch15.addGeometry(Part.LineSegment(V(-67.7, 43.5, 0), V(-89, 43.5, 0)), False)
sketch15.addGeometry(Part.LineSegment(V(-89, 43.5, 0), V(-89, 39.5, 0)), False)
sketch15.addGeometry(Part.LineSegment(V(-89, 39.5, 0), V(-70.5, 39.5, 0)), False)
sketch15.addGeometry(Part.LineSegment(V(-67.7, 39.5, 0), V(-89, 39.5, 0)), True)  # axis
sketch15.addConstraint(Sketcher.Constraint("Coincident", 0, 1, 1, 1))
sketch15.addConstraint(Sketcher.Constraint("Coincident", 1, 2, 2, 1))
sketch15.addConstraint(Sketcher.Constraint("Coincident", 2, 2, 3, 1))
sketch15.addConstraint(Sketcher.Constraint("Coincident", 3, 2, 4, 1))
sketch15.addConstraint(Sketcher.Constraint("Coincident", 4, 2, 0, 2))
sketch15.addConstraint(Sketcher.Constraint("Vertical", 1))
sketch15.addConstraint(Sketcher.Constraint("Horizontal", 2))
sketch15.addConstraint(Sketcher.Constraint("Vertical", 3))
sketch15.addConstraint(Sketcher.Constraint("Horizontal", 4))
sketch15.addConstraint(Sketcher.Constraint("Horizontal", 5))
sketch15.addConstraint(Sketcher.Constraint("Coincident", 5, 1, 0, 3))
sketch15.addConstraint(Sketcher.Constraint("Coincident", 5, 2, 3, 2))
sketch15.addConstraint(Sketcher.Constraint("Vertical", 1, 2, 5, 1))
sketch15.addConstraint(Sketcher.Constraint("DistanceY", 3, 2, 3, 1, 4.0))
sketch15.addConstraint(Sketcher.Constraint("Radius", 0, 2.771357))
sketch15.addConstraint(Sketcher.Constraint("DistanceX", 2, 2, 2, 1, 21.308131))
sketch15.addConstraint(Sketcher.Constraint("DistanceX", 4, 2, -1, 1, 70.496742))
sketch15.addConstraint(Sketcher.Constraint("DistanceY", -1, 1, 0, 3, 39.463026))
revolution2 = body7.newObject("PartDesign::Revolution", "Revolution001")
revolution2.Profile = sketch15
revolution2.ReferenceAxis = (sketch15, ["Axis0"])
revolution2.Angle = 360

# Sketch on YZ plane
sketch16 = body7.newObject("Sketcher::SketchObject", "Sketch015")
sketch16.AttachmentSupport = (doc.getObject("YZ_Plane006"), [""])
sketch16.MapMode = "FlatFace"
sketch16.addGeometry(Part.Circle(V(-67.7, 39.5, 0), V(0, 0, 1), 0.9), False)
sketch16.addConstraint(Sketcher.Constraint("Diameter", 0, 1.767694))
sketch16.addConstraint(Sketcher.Constraint("DistanceX", 0, 3, -1, 1, 67.725385))
sketch16.addConstraint(Sketcher.Constraint("DistanceY", -1, 1, 0, 3, 39.463026))
pocket6 = body7.newObject("PartDesign::Pocket", "Pocket005")
pocket6.Profile = sketch16
pocket6.Length = 7
pocket6.Midplane = True
body8 = doc.addObject("PartDesign::Body", "Body007")

# Sketch on YZ plane
sketch17 = body8.newObject("Sketcher::SketchObject", "Sketch016")
sketch17.AttachmentSupport = (doc.getObject("YZ_Plane007"), [""])
sketch17.MapMode = "FlatFace"
add_polygon(sketch17, [(46, 35), (46, 5), (76, 5), (76, 35), (68, 35), (68, 20), (54, 20), (54, 35)])  # lines 0-7
sketch17.addConstraint(Sketcher.Constraint("Vertical", 0))
sketch17.addConstraint(Sketcher.Constraint("Horizontal", 1))
sketch17.addConstraint(Sketcher.Constraint("Vertical", 2))
sketch17.addConstraint(Sketcher.Constraint("Horizontal", 3))
sketch17.addConstraint(Sketcher.Constraint("Vertical", 4))
sketch17.addConstraint(Sketcher.Constraint("Horizontal", 5))
sketch17.addConstraint(Sketcher.Constraint("Vertical", 6))
sketch17.addConstraint(Sketcher.Constraint("Horizontal", 7))
sketch17.addConstraint(Sketcher.Constraint("Horizontal", 3, 2, 6, 2))
sketch17.addConstraint(Sketcher.Constraint("Equal", 3, 7))
sketch17.addConstraint(Sketcher.Constraint("Equal", 1, 0))
sketch17.addConstraint(Sketcher.Constraint("DistanceX", 1, 1, 1, 2, 30.0))
sketch17.addConstraint(Sketcher.Constraint("DistanceX", 3, 2, 3, 1, 8.0))
sketch17.addConstraint(Sketcher.Constraint("DistanceY", 4, 2, 4, 1, 15.0))
sketch17.addConstraint(Sketcher.Constraint("DistanceY", -1, 1, 0, 2, 5.061622))
sketch17.addConstraint(Sketcher.Constraint("DistanceX", -1, 1, 0, 2, 45.537744))
pad7 = body8.newObject("PartDesign::Pad", "Pad006")
pad7.Profile = sketch17
pad7.Length = 50
pad7.Reversed = True

# Sketch on XY plane
sketch18 = body8.newObject("Sketcher::SketchObject", "Sketch017")
sketch18.AttachmentSupport = (doc.getObject("XY_Plane007"), [""])
sketch18.MapMode = "FlatFace"
sketch18.AttachmentOffset = App.Placement(V(0, 0, 20.061622), App.Rotation())
sketch18.addGeometry(Part.Circle(V(-25, 60.5, 0), V(0, 0, 1), 2.5), False)
sketch18.addConstraint(Sketcher.Constraint("Diameter", 0, 5.0))
sketch18.addConstraint(Sketcher.Constraint("DistanceX", 0, 3, -1, 1, 25.0))
sketch18.addConstraint(Sketcher.Constraint("DistanceY", -1, 1, 0, 3, 60.537744))
pocket7 = body8.newObject("PartDesign::Pocket", "Pocket006")
pocket7.Profile = sketch18
pocket7.Length = 25
body9 = doc.addObject("PartDesign::Body", "Body008")

# Sketch on XY plane
sketch19 = body9.newObject("Sketcher::SketchObject", "Sketch018")
sketch19.AttachmentSupport = (doc.getObject("XY_Plane008"), [""])
sketch19.MapMode = "FlatFace"
sketch19.AttachmentOffset = App.Placement(V(0, 0, 20.061622), App.Rotation())
sketch19.addGeometry(Part.Circle(V(-25, 60.5, 0), V(0, 0, 1), 2.2), False)
sketch19.addConstraint(Sketcher.Constraint("Diameter", 0, 4.5))
sketch19.addConstraint(Sketcher.Constraint("DistanceX", 0, 3, -1, 1, 25.0))
sketch19.addConstraint(Sketcher.Constraint("DistanceY", -1, 1, 0, 3, 60.537744))
pad8 = body9.newObject("PartDesign::Pad", "Pad007")
pad8.Profile = sketch19
pad8.Length = 20
pad8.Reversed = True

doc.recompute()
